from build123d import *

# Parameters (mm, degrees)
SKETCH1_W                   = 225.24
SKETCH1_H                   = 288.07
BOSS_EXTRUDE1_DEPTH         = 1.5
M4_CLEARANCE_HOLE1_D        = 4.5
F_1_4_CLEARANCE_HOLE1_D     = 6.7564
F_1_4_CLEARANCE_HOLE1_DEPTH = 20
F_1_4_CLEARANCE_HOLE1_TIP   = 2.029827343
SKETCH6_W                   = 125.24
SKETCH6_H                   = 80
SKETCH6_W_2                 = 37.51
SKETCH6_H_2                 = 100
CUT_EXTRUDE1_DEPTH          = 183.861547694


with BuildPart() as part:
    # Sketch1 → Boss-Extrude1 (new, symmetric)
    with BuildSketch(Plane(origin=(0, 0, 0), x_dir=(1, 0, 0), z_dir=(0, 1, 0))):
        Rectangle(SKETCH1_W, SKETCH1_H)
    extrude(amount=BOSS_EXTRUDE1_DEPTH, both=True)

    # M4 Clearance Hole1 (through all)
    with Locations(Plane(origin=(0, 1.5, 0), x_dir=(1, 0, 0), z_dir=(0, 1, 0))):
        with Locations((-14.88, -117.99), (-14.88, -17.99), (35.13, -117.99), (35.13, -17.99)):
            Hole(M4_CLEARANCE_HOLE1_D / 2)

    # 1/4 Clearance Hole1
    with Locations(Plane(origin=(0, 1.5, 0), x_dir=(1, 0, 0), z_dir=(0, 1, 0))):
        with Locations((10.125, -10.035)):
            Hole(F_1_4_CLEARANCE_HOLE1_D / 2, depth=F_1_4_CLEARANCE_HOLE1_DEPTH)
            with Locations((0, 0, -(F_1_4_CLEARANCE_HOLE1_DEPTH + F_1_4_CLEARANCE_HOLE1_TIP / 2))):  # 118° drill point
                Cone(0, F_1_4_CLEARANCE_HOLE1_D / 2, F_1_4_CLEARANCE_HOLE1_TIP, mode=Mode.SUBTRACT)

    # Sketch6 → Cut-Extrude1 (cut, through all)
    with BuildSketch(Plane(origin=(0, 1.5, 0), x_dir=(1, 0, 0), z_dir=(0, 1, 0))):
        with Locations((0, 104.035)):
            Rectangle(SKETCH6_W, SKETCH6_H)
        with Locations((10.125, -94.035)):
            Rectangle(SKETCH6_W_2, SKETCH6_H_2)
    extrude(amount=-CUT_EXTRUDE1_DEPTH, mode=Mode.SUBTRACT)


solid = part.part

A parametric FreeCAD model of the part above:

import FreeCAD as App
import Part
import Sketcher
Q = App.Units.Quantity

doc = App.newDocument("Part")
body = doc.addObject("PartDesign::Body", "Body")

# Sketch on XZ plane
sketch1 = doc.addObject("Sketcher::SketchObject", "Sketch")
body.addObject(sketch1)
sketch1.AttachmentSupport = (doc.XZ_Plane, [""])
sketch1.MapMode = "FlatFace"
sketch1.addGeometry([
    Part.LineSegment(App.Vector(-113, -144, 0), App.Vector(-113, 144, 0)),
    Part.LineSegment(App.Vector(-113, 144, 0), App.Vector(113, 144, 0)),
    Part.LineSegment(App.Vector(113, 144, 0), App.Vector(113, -144, 0)),
    Part.LineSegment(App.Vector(113, -144, 0), App.Vector(-113, -144, 0)),
], False)
sketch1.addConstraint([
    Sketcher.Constraint("Coincident", 0, 2, 1, 1),
    Sketcher.Constraint("Coincident", 1, 2, 2, 1),
    Sketcher.Constraint("Coincident", 2, 2, 3, 1),
    Sketcher.Constraint("Coincident", 3, 2, 0, 1),
    Sketcher.Constraint("Vertical", 0),
    Sketcher.Constraint("Horizontal", 1),
    Sketcher.Constraint("Vertical", 2),
    Sketcher.Constraint("Horizontal", 3),
    Sketcher.Constraint("Symmetric", 0, 2, 2, 2, -1, 1),
    Sketcher.Constraint("DistanceX", 1, 1, 1, 2, Q("225.24 mm")),
    Sketcher.Constraint("DistanceY", 0, 1, 0, 2, Q("288.07 mm")),
])
pad1 = doc.addObject("PartDesign::Pad", "Pad")
body.addObject(pad1)
pad1.Profile = sketch1
pad1.Length = 3
pad1.Midplane = True

# Sketch on XZ plane
sketch2 = doc.addObject("Sketcher::SketchObject", "Sketch001")
body.addObject(sketch2)
sketch2.AttachmentSupport = (doc.XZ_Plane, [""])
sketch2.MapMode = "FlatFace"
sketch2.AttachmentOffset = App.Placement(App.Vector(0, 0, -1.5), App.Rotation())
sketch2.addGeometry([
    Part.Circle(App.Vector(-14.9, 118, 0), App.Vector(0, 0, 1), 2.2),
    Part.Circle(App.Vector(-14.9, 18, 0), App.Vector(0, 0, 1), 2.2),
    Part.Circle(App.Vector(35.1, 118, 0), App.Vector(0, 0, 1), 2.2),
    Part.Circle(App.Vector(35.1, 18, 0), App.Vector(0, 0, 1), 2.2),
], False)
sketch2.addConstraint([
    Sketcher.Constraint("Equal", 0, 1),
    Sketcher.Constraint("Equal", 1, 2),
    Sketcher.Constraint("Equal", 2, 3),
    Sketcher.Constraint("Horizontal", 0, 3, 2, 3),
    Sketcher.Constraint("Horizontal", 1, 3, 3, 3),
    Sketcher.Constraint("Vertical", 0, 3, 1, 3),
    Sketcher.Constraint("Vertical", 2, 3, 3, 3),
    Sketcher.Constraint("Diameter", 0, Q("4.5 mm")),
    Sketcher.Constraint("DistanceY", 1, 3, 0, 3, Q("100 mm")),
    Sketcher.Constraint("DistanceX", 0, 3, -1, 1, Q("14.88 mm")),
    Sketcher.Constraint("DistanceY", -1, 1, 0, 3, Q("117.99 mm")),
    Sketcher.Constraint("DistanceX", -1, 1, 2, 3, Q("35.13 mm")),
])
doc.recompute()
hole = doc.addObject("PartDesign::Hole", "Hole")
body.addObject(hole)
hole.Profile = sketch2
hole.ThreadType = "None"
hole.Diameter = 4.5
hole.DepthType = "ThroughAll"
hole.Reversed = True

# Sketch on XZ plane
sketch3 = doc.addObject("Sketcher::SketchObject", "Sketch002")
body.addObject(sketch3)
sketch3.AttachmentSupport = (doc.XZ_Plane, [""])
sketch3.MapMode = "FlatFace"
sketch3.AttachmentOffset = App.Placement(App.Vector(0, 0, -1.5), App.Rotation())
sketch3.addGeometry(Part.Circle(App.Vector(10.1, 10, 0), App.Vector(0, 0, 1), 3.4), False)
sketch3.addConstraint([
    Sketcher.Constraint("Diameter", 0, Q("6.7564 mm")),
    Sketcher.Constraint("DistanceX", -1, 1, 0, 3, Q("10.125 mm")),
    Sketcher.Constraint("DistanceY", -1, 1, 0, 3, Q("10.035 mm")),
])
doc.recompute()
hole2 = doc.addObject("PartDesign::Hole", "Hole001")
body.addObject(hole2)
hole2.Profile = sketch3
hole2.ThreadType = "None"
hole2.Diameter = 6.7564
hole2.DepthType = "Dimension"
hole2.Depth = 20
hole2.DrillPoint = "Angled"
hole2.DrillPointAngle = 118
hole2.Reversed = True

# Sketch on XZ plane
sketch4 = doc.addObject("Sketcher::SketchObject", "Sketch003")
body.addObject(sketch4)
sketch4.AttachmentSupport = (doc.XZ_Plane, [""])
sketch4.MapMode = "FlatFace"
sketch4.AttachmentOffset = App.Placement(App.Vector(0, 0, -1.5), App.Rotation())
sketch4.addGeometry([
    Part.LineSegment(App.Vector(-63, -144, 0), App.Vector(-63, -64, 0)),  # 0
    Part.LineSegment(App.Vector(-63, -64, 0), App.Vector(63, -64, 0)),  # 1
    Part.LineSegment(App.Vector(63, -64, 0), App.Vector(63, -144, 0)),  # 2
    Part.LineSegment(App.Vector(63, -144, 0), App.Vector(-63, -144, 0)),  # 3
    Part.LineSegment(App.Vector(-9, 44, 0), App.Vector(-9, 144, 0)),  # 4
    Part.LineSegment(App.Vector(-9, 144, 0), App.Vector(29, 144, 0)),  # 5
    Part.LineSegment(App.Vector(29, 144, 0), App.Vector(29, 44, 0)),  # 6
    Part.LineSegment(App.Vector(29, 44, 0), App.Vector(-9, 44, 0)),  # 7
], False)
sketch4.addConstraint([
    Sketcher.Constraint("Coincident", 0, 2, 1, 1),
    Sketcher.Constraint("Coincident", 1, 2, 2, 1),
    Sketcher.Constraint("Coincident", 2, 2, 3, 1),
    Sketcher.Constraint("Coincident", 3, 2, 0, 1),
    Sketcher.Constraint("Coincident", 4, 2, 5, 1),
    Sketcher.Constraint("Coincident", 5, 2, 6, 1),
    Sketcher.Constraint("Coincident", 6, 2, 7, 1),
    Sketcher.Constraint("Coincident", 7, 2, 4, 1),
    Sketcher.Constraint("Vertical", 0),
    Sketcher.Constraint("Horizontal", 1),
    Sketcher.Constraint("Vertical", 2),
    Sketcher.Constraint("Horizontal", 3),
    Sketcher.Constraint("Vertical", 4),
    Sketcher.Constraint("Horizontal", 5),
    Sketcher.Constraint("Vertical", 6),
    Sketcher.Constraint("Horizontal", 7),
    Sketcher.Constraint("DistanceY", 0, 1, 0, 2, Q("80 mm")),
    Sketcher.Constraint("DistanceY", 4, 1, 4, 2, Q("100 mm")),
    Sketcher.Constraint("DistanceX", 1, 1, 1, 2, Q("125.24 mm")),
    Sketcher.Constraint("DistanceX", 5, 1, 5, 2, Q("37.51 mm")),
    Sketcher.Constraint("DistanceX", 0, 2, 5, 2, Q("91.5 mm")),
    Sketcher.Constraint("DistanceX", 0, 2, -1, 1, Q("62.62 mm")),
    Sketcher.Constraint("DistanceY", 0, 2, 4, 2, Q("208.07 mm")),
    Sketcher.Constraint("DistanceY", 0, 2, -1, 1, Q("64.035 mm")),
])
pocket1 = doc.addObject("PartDesign::Pocket", "Pocket")
body.addObject(pocket1)
pocket1.Profile = sketch4
pocket1.Type = "ThroughAll"
pocket1.Reversed = True

doc.recompute()
